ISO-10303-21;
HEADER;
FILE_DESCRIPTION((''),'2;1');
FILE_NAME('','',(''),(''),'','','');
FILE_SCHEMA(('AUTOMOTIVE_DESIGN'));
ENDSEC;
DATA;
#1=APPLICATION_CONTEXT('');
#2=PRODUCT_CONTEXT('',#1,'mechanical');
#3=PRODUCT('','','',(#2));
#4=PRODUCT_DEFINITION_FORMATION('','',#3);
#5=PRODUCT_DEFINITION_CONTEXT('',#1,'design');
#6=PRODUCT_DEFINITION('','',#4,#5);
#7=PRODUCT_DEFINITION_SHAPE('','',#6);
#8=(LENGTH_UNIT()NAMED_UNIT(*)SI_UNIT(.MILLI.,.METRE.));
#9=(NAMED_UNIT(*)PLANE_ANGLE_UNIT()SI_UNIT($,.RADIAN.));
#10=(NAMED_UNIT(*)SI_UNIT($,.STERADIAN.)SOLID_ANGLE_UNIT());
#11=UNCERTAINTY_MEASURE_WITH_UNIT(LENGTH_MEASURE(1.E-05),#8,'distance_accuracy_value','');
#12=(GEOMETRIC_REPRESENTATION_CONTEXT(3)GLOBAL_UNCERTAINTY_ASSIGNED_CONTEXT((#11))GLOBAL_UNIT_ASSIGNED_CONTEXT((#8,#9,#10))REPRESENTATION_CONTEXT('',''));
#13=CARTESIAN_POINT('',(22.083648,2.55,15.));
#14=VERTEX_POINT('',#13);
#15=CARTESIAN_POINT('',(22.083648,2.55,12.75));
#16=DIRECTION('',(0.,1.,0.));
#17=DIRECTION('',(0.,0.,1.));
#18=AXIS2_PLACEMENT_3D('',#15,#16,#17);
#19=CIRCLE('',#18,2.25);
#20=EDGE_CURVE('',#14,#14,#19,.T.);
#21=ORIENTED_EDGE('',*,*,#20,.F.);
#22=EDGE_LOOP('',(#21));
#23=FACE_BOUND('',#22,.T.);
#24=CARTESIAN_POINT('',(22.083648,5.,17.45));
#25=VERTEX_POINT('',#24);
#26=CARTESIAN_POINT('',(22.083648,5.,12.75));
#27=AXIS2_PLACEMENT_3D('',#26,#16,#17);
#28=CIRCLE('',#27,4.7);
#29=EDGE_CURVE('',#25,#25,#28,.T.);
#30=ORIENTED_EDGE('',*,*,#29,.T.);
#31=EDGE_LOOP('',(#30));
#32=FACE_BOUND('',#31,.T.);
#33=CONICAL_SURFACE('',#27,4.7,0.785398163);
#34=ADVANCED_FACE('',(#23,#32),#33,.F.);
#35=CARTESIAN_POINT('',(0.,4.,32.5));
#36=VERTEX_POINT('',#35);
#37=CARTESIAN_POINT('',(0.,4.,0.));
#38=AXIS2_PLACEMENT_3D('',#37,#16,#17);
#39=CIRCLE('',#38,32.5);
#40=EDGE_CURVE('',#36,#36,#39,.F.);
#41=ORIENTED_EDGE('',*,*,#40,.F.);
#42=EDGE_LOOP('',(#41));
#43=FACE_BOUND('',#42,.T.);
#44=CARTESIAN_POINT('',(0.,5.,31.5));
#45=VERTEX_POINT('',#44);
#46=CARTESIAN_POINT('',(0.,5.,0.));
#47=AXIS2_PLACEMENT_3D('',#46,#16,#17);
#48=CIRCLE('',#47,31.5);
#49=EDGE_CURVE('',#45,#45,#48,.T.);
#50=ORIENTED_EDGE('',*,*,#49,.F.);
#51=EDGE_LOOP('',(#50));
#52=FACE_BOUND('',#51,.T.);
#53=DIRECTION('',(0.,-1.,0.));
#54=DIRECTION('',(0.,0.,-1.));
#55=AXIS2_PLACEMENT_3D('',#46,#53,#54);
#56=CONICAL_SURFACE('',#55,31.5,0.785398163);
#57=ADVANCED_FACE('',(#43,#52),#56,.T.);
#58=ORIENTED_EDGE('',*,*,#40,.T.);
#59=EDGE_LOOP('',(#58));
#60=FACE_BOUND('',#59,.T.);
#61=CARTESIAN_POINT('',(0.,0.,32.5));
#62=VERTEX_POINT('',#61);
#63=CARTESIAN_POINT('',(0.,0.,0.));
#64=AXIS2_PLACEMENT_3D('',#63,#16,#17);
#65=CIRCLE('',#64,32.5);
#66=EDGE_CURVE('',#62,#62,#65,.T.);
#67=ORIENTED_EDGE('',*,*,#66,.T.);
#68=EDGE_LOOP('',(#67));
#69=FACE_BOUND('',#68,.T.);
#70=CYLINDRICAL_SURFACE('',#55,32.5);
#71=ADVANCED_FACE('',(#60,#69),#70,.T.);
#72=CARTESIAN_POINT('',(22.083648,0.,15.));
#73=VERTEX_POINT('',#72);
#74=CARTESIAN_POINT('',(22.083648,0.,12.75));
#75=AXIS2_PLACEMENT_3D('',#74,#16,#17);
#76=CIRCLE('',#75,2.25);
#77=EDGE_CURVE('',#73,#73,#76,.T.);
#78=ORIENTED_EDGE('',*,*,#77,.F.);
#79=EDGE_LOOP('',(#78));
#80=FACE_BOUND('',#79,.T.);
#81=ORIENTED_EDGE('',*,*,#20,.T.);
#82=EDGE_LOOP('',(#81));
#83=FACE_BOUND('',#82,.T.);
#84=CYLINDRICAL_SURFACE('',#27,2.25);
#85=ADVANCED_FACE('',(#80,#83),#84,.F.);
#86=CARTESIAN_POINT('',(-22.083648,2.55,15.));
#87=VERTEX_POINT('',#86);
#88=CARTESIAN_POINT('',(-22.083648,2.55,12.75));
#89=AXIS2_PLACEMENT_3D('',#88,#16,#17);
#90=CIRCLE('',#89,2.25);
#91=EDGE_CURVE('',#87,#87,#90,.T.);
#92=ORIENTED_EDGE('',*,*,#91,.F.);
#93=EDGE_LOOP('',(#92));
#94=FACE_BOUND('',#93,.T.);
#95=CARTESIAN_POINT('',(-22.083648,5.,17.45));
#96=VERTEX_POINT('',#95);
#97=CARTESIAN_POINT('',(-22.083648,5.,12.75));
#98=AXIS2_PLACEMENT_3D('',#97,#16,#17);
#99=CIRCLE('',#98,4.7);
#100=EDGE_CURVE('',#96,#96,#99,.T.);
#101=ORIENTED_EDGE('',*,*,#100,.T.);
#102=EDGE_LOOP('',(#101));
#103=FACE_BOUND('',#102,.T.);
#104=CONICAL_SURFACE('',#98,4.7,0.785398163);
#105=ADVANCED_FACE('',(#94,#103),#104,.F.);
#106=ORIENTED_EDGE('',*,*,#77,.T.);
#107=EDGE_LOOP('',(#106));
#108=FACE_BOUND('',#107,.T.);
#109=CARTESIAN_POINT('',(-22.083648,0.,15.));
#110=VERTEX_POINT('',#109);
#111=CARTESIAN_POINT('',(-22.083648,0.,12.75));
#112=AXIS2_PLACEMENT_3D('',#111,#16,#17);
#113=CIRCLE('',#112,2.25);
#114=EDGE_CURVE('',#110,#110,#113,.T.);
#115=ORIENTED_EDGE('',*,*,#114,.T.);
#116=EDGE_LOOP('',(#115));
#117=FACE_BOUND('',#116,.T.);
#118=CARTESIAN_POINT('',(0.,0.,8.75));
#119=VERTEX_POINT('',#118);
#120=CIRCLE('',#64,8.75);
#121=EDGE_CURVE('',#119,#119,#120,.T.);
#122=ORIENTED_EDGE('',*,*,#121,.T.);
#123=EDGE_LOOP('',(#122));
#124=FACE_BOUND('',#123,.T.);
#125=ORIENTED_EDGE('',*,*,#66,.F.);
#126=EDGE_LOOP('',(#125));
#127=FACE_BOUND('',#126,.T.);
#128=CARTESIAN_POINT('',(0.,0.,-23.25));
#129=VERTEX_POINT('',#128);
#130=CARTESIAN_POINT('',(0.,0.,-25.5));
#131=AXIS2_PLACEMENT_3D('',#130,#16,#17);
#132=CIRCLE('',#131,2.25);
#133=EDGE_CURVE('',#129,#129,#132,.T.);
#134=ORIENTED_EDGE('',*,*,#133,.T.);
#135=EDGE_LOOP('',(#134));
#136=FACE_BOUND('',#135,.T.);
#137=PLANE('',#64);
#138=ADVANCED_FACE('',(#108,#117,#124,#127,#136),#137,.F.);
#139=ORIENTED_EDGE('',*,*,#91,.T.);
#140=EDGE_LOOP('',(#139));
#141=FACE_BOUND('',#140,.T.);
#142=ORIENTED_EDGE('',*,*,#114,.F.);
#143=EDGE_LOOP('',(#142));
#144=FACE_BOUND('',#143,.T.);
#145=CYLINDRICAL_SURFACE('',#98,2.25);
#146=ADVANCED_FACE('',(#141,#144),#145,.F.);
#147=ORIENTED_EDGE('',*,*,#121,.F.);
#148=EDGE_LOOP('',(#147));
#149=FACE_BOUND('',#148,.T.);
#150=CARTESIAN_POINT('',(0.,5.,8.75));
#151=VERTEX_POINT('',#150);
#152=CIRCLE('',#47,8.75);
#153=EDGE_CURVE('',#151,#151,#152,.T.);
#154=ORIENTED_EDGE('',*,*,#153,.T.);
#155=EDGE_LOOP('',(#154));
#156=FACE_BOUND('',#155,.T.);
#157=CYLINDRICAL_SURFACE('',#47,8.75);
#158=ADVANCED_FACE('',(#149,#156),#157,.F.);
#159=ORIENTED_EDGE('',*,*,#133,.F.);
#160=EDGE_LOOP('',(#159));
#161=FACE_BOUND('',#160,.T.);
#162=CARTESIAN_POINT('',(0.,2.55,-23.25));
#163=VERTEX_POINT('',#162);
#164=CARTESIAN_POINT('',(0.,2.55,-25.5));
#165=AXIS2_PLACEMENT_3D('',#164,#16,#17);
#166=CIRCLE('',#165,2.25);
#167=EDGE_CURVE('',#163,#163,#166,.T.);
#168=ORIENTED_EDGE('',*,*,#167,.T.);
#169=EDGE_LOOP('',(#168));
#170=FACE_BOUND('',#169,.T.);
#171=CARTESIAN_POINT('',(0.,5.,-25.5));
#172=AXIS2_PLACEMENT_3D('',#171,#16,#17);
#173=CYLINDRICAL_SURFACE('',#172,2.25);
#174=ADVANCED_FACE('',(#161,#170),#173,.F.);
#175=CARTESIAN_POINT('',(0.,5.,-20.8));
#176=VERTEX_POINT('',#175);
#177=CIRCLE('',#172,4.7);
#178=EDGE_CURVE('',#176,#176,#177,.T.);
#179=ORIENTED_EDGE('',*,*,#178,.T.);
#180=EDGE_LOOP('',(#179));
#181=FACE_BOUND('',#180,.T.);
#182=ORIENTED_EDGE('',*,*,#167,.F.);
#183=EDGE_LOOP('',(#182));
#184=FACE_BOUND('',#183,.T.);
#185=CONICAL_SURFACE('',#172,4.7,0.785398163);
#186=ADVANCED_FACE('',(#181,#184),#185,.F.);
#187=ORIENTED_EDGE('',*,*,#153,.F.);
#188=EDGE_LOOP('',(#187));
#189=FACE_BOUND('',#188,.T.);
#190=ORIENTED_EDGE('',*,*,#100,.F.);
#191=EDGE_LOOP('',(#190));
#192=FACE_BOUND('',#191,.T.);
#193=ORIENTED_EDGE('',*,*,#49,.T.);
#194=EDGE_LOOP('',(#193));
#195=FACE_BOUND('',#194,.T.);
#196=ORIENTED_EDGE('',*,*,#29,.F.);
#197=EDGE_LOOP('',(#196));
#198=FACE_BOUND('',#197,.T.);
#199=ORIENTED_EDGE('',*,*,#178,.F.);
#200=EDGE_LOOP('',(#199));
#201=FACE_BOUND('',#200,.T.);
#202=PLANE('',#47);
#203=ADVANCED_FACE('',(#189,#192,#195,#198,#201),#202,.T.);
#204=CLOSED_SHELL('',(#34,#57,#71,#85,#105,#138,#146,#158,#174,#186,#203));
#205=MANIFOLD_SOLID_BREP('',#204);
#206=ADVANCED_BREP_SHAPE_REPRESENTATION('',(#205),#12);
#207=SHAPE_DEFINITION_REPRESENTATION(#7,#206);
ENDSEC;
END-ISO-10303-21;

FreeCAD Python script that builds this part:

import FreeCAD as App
import Part
import Sketcher

V = App.Vector
Q = App.Units.Quantity


def edges_at(feature, points):
    """Names of the edges that pass closest to the given points."""
    edges = feature.Shape.Edges
    near = lambda p: min(range(len(edges)), key=lambda i: edges[i].distToShape(Part.Vertex(*p))[0])
    return sorted({f"Edge{near(p) + 1}" for p in points})

doc = App.newDocument("Part")
body = doc.addObject("PartDesign::Body", "Body")

# Sketch on XZ plane
sketch1 = doc.addObject("Sketcher::SketchObject", "Sketch")
body.addObject(sketch1)
sketch1.AttachmentSupport = (doc.XZ_Plane, [""])
sketch1.MapMode = "FlatFace"
sketch1.addGeometry(Part.Circle(V(0, 0, 0), V(0, 0, 1), 32), False)
sketch1.addConstraint(Sketcher.Constraint("Coincident", 0, 3, -1, 1))
sketch1.addConstraint(Sketcher.Constraint("Diameter", 0, Q("65 mm")))
pad1 = doc.addObject("PartDesign::Pad", "Pad")
body.addObject(pad1)
pad1.Profile = sketch1
pad1.Length = 5
pad1.Reversed = True
doc.recompute()

chamfer = doc.addObject("PartDesign::Chamfer", "Chamfer")
body.addObject(chamfer)
chamfer.Base = (pad1, edges_at(pad1, [(0, 5, -32.5)]))
chamfer.Size = 1

# Sketch on XZ plane
sketch2 = doc.addObject("Sketcher::SketchObject", "Sketch001")
body.addObject(sketch2)
sketch2.AttachmentSupport = (doc.XZ_Plane, [""])
sketch2.MapMode = "FlatFace"
sketch2.AttachmentOffset = App.Placement(V(0, 0, -5), App.Rotation())
sketch2.addGeometry(Part.Circle(V(0, -25.5, 0), V(0, 0, 1), 2.2), False)
sketch2.addConstraint(Sketcher.Constraint("PointOnObject", 0, 3, -2))
sketch2.addConstraint(Sketcher.Constraint("Diameter", 0, Q("4.5 mm")))
sketch2.addConstraint(Sketcher.Constraint("DistanceY", 0, 3, -1, 1, Q("25.5 mm")))
doc.recompute()
hole = doc.addObject("PartDesign::Hole", "Hole")
body.addObject(hole)
hole.Profile = sketch2
hole.ThreadType = "None"
hole.Diameter = 4.5
hole.DepthType = "ThroughAll"
hole.HoleCutType = "Countersink"
hole.HoleCutDiameter = 9.4
hole.HoleCutCountersinkAngle = 90
hole.Reversed = True

# Sketch on XZ plane
sketch3 = doc.addObject("Sketcher::SketchObject", "Sketch002")
body.addObject(sketch3)
sketch3.AttachmentSupport = (doc.XZ_Plane, [""])
sketch3.MapMode = "FlatFace"
sketch3.addGeometry(Part.Circle(V(0, 0, 0), V(0, 0, 1), 9), False)
sketch3.addConstraint(Sketcher.Constraint("Coincident", 0, 3, -1, 1))
sketch3.addConstraint(Sketcher.Constraint("Diameter", 0, Q("17.5 mm")))
doc.recompute()
hole2 = doc.addObject("PartDesign::Hole", "Hole001")
body.addObject(hole2)
hole2.Profile = sketch3
hole2.ThreadType = "None"
hole2.Diameter = 17.5
hole2.DepthType = "ThroughAll"

# Sketch on XZ plane
sketch4 = doc.addObject("Sketcher::SketchObject", "Sketch003")
body.addObject(sketch4)
sketch4.AttachmentSupport = (doc.XZ_Plane, [""])
sketch4.MapMode = "FlatFace"
sketch4.AttachmentOffset = App.Placement(V(0, 0, -5), App.Rotation())
sketch4.addGeometry(Part.Circle(V(0, 0, 0), V(0, 0, 1), 9), False)
sketch4.addConstraint(Sketcher.Constraint("Coincident", 0, 3, -1, 1))
sketch4.addConstraint(Sketcher.Constraint("Diameter", 0, Q("17.5 mm")))
doc.recompute()
hole3 = doc.addObject("PartDesign::Hole", "Hole002")
body.addObject(hole3)
hole3.Profile = sketch4
hole3.ThreadType = "None"
hole3.Diameter = 17.5
hole3.DepthType = "ThroughAll"
hole3.Reversed = True
doc.recompute()

polarpattern = doc.addObject("PartDesign::PolarPattern", "PolarPattern")
body.addObject(polarpattern)
polarpattern.Originals = [hole]
polarpattern.Axis = (doc.Y_Axis, [""])
polarpattern.Angle = 360
polarpattern.Occurrences = 3
body.Tip = polarpattern

doc.recompute()
